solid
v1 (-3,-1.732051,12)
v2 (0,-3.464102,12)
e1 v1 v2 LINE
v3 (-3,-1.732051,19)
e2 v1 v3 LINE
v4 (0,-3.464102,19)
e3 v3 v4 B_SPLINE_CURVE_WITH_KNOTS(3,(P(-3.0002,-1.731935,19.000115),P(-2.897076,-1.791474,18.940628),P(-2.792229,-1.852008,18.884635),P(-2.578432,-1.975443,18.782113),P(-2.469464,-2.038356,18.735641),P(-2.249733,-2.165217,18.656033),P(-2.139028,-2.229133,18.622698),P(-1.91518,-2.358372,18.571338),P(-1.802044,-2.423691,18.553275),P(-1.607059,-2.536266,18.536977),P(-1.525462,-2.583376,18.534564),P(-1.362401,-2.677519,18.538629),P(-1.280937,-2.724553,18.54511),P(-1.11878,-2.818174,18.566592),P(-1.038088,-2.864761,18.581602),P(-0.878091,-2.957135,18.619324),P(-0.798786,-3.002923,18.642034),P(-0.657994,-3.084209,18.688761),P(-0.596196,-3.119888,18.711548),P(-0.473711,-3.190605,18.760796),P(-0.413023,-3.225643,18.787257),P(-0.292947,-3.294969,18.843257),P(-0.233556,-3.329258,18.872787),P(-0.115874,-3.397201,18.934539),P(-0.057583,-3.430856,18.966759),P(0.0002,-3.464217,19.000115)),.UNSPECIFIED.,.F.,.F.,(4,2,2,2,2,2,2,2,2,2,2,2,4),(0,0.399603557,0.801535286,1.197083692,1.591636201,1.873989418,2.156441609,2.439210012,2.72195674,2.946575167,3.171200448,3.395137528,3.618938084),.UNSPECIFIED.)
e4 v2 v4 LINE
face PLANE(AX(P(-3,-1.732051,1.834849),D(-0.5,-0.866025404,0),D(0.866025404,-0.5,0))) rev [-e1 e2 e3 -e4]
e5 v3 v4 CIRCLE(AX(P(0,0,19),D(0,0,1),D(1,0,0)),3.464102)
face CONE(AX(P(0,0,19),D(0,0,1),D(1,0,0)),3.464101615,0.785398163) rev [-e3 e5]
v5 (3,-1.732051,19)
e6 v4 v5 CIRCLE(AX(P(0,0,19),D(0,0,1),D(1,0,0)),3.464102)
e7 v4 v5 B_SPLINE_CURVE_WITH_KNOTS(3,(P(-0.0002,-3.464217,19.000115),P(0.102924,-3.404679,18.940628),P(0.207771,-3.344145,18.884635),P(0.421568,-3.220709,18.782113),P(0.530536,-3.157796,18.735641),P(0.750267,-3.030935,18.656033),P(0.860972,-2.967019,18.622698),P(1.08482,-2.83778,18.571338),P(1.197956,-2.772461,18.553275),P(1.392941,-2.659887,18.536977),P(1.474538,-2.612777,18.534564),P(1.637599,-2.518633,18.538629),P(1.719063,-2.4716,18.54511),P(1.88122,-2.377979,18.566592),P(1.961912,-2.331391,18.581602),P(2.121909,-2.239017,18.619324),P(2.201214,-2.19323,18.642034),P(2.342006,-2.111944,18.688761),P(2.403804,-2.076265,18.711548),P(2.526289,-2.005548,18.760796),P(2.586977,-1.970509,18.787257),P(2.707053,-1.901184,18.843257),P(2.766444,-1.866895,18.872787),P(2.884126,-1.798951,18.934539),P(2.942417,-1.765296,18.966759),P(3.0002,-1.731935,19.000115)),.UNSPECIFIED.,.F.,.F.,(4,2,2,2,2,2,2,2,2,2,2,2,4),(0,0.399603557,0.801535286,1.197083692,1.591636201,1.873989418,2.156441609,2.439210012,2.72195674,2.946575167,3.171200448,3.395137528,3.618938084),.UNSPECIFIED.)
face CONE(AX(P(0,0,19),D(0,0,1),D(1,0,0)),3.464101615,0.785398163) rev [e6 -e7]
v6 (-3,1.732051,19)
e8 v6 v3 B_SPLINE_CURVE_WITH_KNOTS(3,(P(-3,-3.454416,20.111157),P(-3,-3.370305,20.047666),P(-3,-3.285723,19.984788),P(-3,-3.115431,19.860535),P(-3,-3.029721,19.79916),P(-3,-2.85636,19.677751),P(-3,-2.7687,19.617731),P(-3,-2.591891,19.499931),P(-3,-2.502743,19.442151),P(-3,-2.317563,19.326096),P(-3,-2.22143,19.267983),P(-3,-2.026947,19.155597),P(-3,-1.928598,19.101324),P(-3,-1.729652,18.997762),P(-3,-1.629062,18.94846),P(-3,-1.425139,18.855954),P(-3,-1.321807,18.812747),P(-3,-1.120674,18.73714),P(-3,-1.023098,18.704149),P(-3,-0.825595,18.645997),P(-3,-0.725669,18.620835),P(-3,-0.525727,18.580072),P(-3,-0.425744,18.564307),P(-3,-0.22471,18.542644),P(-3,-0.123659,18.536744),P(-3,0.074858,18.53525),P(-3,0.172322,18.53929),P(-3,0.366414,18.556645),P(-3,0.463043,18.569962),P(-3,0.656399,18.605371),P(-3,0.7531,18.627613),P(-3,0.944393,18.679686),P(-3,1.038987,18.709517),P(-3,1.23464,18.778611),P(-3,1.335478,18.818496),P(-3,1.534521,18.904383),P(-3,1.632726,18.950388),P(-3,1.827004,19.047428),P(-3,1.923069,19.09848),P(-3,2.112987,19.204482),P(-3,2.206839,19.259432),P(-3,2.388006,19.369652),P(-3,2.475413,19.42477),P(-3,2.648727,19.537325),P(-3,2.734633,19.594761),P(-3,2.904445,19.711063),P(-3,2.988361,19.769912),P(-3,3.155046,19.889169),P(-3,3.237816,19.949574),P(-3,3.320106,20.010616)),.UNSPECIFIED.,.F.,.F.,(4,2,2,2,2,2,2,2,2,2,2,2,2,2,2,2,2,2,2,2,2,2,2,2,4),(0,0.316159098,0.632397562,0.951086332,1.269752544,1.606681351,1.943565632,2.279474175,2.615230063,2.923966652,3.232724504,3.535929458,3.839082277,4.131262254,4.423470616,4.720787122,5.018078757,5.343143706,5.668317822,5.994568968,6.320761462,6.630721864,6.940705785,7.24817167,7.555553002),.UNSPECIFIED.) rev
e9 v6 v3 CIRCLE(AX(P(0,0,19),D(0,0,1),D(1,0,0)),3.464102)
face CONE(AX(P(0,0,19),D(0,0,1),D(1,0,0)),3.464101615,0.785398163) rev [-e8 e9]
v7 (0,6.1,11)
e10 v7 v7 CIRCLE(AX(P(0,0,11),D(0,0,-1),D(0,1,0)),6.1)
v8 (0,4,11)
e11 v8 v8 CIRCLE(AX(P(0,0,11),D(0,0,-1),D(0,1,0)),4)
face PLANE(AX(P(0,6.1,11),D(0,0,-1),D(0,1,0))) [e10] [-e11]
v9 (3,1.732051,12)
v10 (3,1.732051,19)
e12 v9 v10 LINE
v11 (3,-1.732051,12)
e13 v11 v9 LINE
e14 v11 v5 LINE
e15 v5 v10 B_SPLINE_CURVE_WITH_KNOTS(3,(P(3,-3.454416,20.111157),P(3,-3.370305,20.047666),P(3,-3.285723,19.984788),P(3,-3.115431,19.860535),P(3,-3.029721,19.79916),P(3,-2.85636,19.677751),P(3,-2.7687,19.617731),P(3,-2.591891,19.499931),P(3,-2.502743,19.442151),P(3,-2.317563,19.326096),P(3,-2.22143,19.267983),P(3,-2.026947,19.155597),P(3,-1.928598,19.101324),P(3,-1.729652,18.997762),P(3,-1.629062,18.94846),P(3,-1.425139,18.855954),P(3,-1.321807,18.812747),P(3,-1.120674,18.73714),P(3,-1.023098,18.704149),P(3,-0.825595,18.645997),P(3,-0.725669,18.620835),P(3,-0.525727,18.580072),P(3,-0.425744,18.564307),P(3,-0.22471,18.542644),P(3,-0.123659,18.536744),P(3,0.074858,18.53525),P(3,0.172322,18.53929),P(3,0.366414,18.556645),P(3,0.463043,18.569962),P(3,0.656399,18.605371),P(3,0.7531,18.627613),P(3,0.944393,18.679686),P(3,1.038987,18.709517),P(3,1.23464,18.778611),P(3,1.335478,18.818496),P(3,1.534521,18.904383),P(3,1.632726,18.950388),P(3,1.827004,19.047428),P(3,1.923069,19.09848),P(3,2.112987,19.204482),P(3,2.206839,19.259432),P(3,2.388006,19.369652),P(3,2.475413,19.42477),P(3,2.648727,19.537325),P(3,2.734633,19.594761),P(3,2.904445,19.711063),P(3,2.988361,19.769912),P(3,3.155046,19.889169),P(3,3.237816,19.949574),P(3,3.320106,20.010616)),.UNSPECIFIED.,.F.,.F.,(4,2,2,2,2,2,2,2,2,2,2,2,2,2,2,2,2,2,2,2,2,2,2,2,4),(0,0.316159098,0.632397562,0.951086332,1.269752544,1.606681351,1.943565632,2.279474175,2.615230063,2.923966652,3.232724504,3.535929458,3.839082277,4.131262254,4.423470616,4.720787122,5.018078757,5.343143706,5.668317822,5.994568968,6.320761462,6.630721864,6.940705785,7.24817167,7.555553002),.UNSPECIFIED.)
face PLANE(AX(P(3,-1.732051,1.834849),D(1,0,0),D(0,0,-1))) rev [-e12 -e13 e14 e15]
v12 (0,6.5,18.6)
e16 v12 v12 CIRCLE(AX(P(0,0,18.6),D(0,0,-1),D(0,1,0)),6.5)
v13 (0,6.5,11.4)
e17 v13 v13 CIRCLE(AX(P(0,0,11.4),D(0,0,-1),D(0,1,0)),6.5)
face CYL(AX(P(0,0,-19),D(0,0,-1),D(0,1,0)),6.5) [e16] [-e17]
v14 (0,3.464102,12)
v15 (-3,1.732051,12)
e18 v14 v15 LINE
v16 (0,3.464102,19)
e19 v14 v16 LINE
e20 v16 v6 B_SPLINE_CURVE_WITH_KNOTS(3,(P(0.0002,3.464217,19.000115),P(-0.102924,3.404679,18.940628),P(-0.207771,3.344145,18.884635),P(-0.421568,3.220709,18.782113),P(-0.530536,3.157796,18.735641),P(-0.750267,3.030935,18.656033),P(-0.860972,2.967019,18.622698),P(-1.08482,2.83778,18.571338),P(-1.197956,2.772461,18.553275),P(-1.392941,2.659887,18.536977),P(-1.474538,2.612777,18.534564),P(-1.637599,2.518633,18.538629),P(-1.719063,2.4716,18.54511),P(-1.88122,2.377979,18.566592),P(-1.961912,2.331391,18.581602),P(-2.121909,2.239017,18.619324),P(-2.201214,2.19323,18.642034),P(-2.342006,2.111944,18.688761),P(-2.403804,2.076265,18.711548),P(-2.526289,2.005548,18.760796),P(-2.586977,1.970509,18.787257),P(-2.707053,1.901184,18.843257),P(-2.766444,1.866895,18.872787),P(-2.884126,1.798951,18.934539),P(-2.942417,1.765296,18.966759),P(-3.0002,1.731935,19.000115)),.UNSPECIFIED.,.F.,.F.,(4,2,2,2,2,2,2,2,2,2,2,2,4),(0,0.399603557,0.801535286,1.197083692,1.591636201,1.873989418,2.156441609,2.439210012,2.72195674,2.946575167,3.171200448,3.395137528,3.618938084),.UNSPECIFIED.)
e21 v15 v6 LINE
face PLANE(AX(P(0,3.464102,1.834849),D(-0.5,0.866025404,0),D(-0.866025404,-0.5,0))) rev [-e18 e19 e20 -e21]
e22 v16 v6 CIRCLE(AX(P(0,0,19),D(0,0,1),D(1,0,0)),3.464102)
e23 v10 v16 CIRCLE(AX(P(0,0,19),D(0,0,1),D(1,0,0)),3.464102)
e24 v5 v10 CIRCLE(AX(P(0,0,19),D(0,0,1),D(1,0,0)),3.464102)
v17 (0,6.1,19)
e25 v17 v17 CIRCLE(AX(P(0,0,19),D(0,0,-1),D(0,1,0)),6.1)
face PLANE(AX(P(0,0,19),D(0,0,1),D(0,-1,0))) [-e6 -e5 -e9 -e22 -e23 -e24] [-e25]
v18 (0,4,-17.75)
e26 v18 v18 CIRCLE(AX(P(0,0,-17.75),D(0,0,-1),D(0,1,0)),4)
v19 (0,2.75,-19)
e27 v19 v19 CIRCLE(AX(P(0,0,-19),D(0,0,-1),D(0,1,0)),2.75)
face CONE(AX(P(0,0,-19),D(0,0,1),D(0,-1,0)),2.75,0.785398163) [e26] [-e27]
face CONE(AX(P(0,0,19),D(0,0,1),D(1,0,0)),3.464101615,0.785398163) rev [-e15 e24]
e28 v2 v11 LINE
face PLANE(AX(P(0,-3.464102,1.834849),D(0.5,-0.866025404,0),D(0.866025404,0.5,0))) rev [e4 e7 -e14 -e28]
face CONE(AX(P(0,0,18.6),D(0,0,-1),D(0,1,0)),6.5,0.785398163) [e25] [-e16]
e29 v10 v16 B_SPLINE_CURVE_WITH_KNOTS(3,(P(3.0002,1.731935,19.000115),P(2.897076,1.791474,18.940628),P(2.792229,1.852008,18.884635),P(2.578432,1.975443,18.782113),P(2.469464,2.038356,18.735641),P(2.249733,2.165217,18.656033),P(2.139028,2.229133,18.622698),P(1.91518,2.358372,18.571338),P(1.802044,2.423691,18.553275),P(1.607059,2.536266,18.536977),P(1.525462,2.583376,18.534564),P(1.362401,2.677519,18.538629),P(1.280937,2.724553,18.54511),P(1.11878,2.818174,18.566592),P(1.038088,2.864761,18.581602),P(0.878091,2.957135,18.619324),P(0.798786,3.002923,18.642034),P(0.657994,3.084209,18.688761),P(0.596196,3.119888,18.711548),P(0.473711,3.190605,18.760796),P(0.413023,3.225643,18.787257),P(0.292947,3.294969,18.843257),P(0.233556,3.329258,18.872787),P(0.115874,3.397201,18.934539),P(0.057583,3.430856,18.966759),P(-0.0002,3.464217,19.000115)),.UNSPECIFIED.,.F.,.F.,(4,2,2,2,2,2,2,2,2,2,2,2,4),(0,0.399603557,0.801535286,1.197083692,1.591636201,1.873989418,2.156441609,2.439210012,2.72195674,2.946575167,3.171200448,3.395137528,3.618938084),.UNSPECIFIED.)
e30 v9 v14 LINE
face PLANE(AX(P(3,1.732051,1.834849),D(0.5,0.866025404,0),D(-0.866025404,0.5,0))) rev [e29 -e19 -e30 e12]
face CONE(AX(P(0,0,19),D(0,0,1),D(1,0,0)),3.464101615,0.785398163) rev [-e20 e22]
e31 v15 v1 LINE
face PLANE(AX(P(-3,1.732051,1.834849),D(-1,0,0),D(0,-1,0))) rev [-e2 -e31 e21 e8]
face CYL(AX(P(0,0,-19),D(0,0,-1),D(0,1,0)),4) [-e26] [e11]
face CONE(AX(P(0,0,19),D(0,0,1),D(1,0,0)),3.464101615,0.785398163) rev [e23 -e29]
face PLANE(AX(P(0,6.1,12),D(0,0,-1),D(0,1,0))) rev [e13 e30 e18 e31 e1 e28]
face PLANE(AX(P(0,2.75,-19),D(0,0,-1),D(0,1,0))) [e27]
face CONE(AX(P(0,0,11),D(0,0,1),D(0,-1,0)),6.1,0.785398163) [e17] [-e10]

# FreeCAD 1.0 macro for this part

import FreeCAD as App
import Part
import Sketcher
Q = App.Units.Quantity


def add_polygon(sketch, points):
    """Adds a closed chain of lines whose ends are joined by coincident constraints."""
    first, n = sketch.GeometryCount, len(points)
    for a, b in zip(points, points[1:] + points[:1]):
        sketch.addGeometry(Part.LineSegment(App.Vector(*a, 0), App.Vector(*b, 0)), False)
    for i in range(n):
        sketch.addConstraint(Sketcher.Constraint("Coincident", first + i, 2, first + (i + 1) % n, 1))

doc = App.newDocument("Part")
body = doc.addObject("PartDesign::Body", "Body")

sketch1 = doc.addObject("Sketcher::SketchObject", "Sketch")
body.addObject(sketch1)
sketch1.AttachmentSupport = (doc.YZ_Plane, [""])
sketch1.MapMode = "FlatFace"
add_polygon(sketch1, [(6.1, 19), (0, 19), (0, -19), (2.8, -19), (4, -17.8), (4, 11), (6.1, 11), (6.5, 11.4), (6.5, 18.6)])
sketch1.addConstraint(Sketcher.Constraint("Horizontal", 0))
sketch1.addConstraint(Sketcher.Constraint("Vertical", 1))
sketch1.addConstraint(Sketcher.Constraint("Horizontal", 2))
sketch1.addConstraint(Sketcher.Constraint("Vertical", 4))
sketch1.addConstraint(Sketcher.Constraint("Horizontal", 5))
sketch1.addConstraint(Sketcher.Constraint("Vertical", 7))
sketch1.addConstraint(Sketcher.Constraint("Symmetric", 0, 2, 1, 2, -1, 1))
sketch1.addConstraint(Sketcher.Constraint("Parallel", 3, 6))
sketch1.addConstraint(Sketcher.Constraint("Perpendicular", 6, 8))
sketch1.addConstraint(Sketcher.Constraint("Vertical", 5, 2, 8, 2))
sketch1.addConstraint(Sketcher.Constraint("Equal", 6, 8))
sketch1.addConstraint(Sketcher.Constraint("DistanceY", 1, 2, 1, 1, 38.0))
sketch1.addConstraint(Sketcher.Constraint("DistanceX", 0, 2, 0, 1, 6.1))
sketch1.addConstraint(Sketcher.Constraint("DistanceX", 5, 1, 5, 2, 2.1))
sketch1.addConstraint(Sketcher.Constraint("DistanceY", 7, 1, 7, 2, 7.2))
sketch1.addConstraint(Sketcher.Constraint("DistanceY", -1, 1, 4, 2, 11.0))
sketch1.addConstraint(Sketcher.Constraint("DistanceX", 2, 1, 2, 2, 2.75))
revolution = doc.addObject("PartDesign::Revolution", "Revolution")
body.addObject(revolution)
revolution.Profile = sketch1
revolution.ReferenceAxis = (sketch1, ["V_Axis"])
revolution.Angle = 360

sketch2 = doc.addObject("Sketcher::SketchObject", "Sketch001")
body.addObject(sketch2)
sketch2.AttachmentSupport = (doc.XY_Plane, [""])
sketch2.MapMode = "FlatFace"
sketch2.AttachmentOffset = App.Placement(App.Vector(0, 0, 19), App.Rotation())
add_polygon(sketch2, [(3, -1.7), (3, 1.7), (0, 3.5), (-3, 1.7), (-3, -1.7), (0, -3.5)])
sketch2.addConstraint(Sketcher.Constraint("Vertical", 0))
sketch2.addConstraint(Sketcher.Constraint("Vertical", 3))
sketch2.addConstraint(Sketcher.Constraint("Symmetric", 0, 2, 3, 2, -1, 1))
sketch2.addConstraint(Sketcher.Constraint("Symmetric", 1, 2, 4, 2, -1, 1))
sketch2.addConstraint(Sketcher.Constraint("PointOnObject", 1, 2, -2))
sketch2.addConstraint(Sketcher.Constraint("Parallel", 2, 5))
sketch2.addConstraint(Sketcher.Constraint("Horizontal", 0, 2, 2, 2))
sketch2.addConstraint(Sketcher.Constraint("Angle", 1, Q("150 deg")))
sketch2.addConstraint(Sketcher.Constraint("DistanceX", -1, 1, 0, 2, 3.0))
sketch2.addConstraint(Sketcher.Constraint("DistanceY", 0, 1, 0, 2, 3.464102))
pocket1 = doc.addObject("PartDesign::Pocket", "Pocket")
body.addObject(pocket1)
pocket1.Profile = sketch2
pocket1.Length = 7

sketch3 = doc.addObject("Sketcher::SketchObject", "Sketch002")
body.addObject(sketch3)
sketch3.AttachmentSupport = (doc.YZ_Plane, [""])
sketch3.MapMode = "FlatFace"
add_polygon(sketch3, [(0, 19), (-3.5, 19), (0, 15.5)])
sketch3.addConstraint(Sketcher.Constraint("Horizontal", 0))
sketch3.addConstraint(Sketcher.Constraint("Vertical", 2))
sketch3.addConstraint(Sketcher.Constraint("PointOnObject", 1, 2, -2))
sketch3.addConstraint(Sketcher.Constraint("Equal", 0, 2))
sketch3.addConstraint(Sketcher.Constraint("DistanceY", -1, 1, 0, 2, 19.0))
sketch3.addConstraint(Sketcher.Constraint("DistanceX", 0, 2, 0, 1, 3.464102))
groove = doc.addObject("PartDesign::Groove", "Groove")
body.addObject(groove)
groove.Profile = sketch3
groove.ReferenceAxis = (sketch3, ["V_Axis"])
groove.Angle = 360

doc.recompute()
